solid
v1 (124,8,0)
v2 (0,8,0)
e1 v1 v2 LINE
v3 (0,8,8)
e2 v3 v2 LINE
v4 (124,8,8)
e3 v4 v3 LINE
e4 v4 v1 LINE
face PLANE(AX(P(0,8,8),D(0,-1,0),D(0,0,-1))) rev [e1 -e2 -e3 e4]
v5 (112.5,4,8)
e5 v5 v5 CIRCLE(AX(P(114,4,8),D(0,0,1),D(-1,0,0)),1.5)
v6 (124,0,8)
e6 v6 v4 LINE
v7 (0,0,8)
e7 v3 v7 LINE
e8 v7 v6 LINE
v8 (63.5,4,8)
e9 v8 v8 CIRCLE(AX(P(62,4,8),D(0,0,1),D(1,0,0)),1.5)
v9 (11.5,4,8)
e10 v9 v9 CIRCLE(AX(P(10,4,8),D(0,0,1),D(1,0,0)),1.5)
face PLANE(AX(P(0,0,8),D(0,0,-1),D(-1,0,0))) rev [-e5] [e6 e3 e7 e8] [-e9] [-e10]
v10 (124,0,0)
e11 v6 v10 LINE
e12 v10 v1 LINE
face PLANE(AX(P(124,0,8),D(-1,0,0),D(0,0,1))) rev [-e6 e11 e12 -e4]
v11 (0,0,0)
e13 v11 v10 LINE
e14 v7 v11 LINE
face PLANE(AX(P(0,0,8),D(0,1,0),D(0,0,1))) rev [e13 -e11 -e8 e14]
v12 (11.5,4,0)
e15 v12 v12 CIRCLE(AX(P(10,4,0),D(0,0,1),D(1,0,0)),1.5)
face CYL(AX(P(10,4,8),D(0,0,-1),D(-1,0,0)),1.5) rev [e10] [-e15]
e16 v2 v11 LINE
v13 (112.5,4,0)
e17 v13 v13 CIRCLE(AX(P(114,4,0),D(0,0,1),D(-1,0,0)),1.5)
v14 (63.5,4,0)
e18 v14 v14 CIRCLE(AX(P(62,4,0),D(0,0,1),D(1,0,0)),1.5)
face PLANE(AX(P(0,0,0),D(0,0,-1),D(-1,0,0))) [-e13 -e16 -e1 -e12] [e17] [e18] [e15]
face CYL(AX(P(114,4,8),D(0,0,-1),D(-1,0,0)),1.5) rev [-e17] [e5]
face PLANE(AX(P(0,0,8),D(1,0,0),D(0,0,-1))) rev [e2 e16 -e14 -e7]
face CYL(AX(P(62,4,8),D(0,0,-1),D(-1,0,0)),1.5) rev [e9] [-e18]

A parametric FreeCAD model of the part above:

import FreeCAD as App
import Part
import Sketcher

V = App.Vector


def add_polygon(sketch, points):
    """Adds a closed chain of lines whose ends are joined by coincident constraints."""
    first, n = sketch.GeometryCount, len(points)
    for a, b in zip(points, points[1:] + points[:1]):
        sketch.addGeometry(Part.LineSegment(App.Vector(*a, 0), App.Vector(*b, 0)), False)
    for i in range(n):
        sketch.addConstraint(Sketcher.Constraint("Coincident", first + i, 2, first + (i + 1) % n, 1))

doc = App.newDocument("Part")
body = doc.addObject("PartDesign::Body", "Body")

# Sketch on XY plane
sketch1 = doc.addObject("Sketcher::SketchObject", "Sketch")
body.addObject(sketch1)
sketch1.AttachmentSupport = (doc.XY_Plane, [""])
sketch1.MapMode = "FlatFace"
add_polygon(sketch1, [(0, 8), (0, 0), (124, 0), (124, 8)])  # lines 0-3
sketch1.addGeometry(Part.Circle(V(10, 4, 0), V(0, 0, 1), 1.5), False)  # 4
sketch1.addGeometry(Part.Circle(V(62, 4, 0), V(0, 0, 1), 1.5), False)  # 5
sketch1.addGeometry(Part.Circle(V(114, 4, 0), V(0, 0, 1), 1.5), False)  # 6
sketch1.addConstraint(Sketcher.Constraint("Vertical", 0))
sketch1.addConstraint(Sketcher.Constraint("Horizontal", 1))
sketch1.addConstraint(Sketcher.Constraint("Vertical", 2))
sketch1.addConstraint(Sketcher.Constraint("Horizontal", 3))
sketch1.addConstraint(Sketcher.Constraint("Coincident", 0, 2, -1, 1))
sketch1.addConstraint(Sketcher.Constraint("Equal", 4, 5))
sketch1.addConstraint(Sketcher.Constraint("Equal", 5, 6))
sketch1.addConstraint(Sketcher.Constraint("Horizontal", 4, 3, 5, 3))
sketch1.addConstraint(Sketcher.Constraint("Horizontal", 5, 3, 6, 3))
sketch1.addConstraint(Sketcher.Constraint("Diameter", 4, 3.0))
sketch1.addConstraint(Sketcher.Constraint("DistanceX", 1, 1, 1, 2, 124.0))
sketch1.addConstraint(Sketcher.Constraint("DistanceY", 0, 2, 0, 1, 8.0))
sketch1.addConstraint(Sketcher.Constraint("DistanceX", -1, 1, 4, 3, 10.0))
sketch1.addConstraint(Sketcher.Constraint("DistanceY", -1, 1, 4, 3, 4.0))
sketch1.addConstraint(Sketcher.Constraint("DistanceX", -1, 1, 5, 3, 62.0))
sketch1.addConstraint(Sketcher.Constraint("DistanceX", -1, 1, 6, 3, 114.0))
pad1 = doc.addObject("PartDesign::Pad", "Pad")
body.addObject(pad1)
pad1.Profile = sketch1
pad1.Length = 8

doc.recompute()
